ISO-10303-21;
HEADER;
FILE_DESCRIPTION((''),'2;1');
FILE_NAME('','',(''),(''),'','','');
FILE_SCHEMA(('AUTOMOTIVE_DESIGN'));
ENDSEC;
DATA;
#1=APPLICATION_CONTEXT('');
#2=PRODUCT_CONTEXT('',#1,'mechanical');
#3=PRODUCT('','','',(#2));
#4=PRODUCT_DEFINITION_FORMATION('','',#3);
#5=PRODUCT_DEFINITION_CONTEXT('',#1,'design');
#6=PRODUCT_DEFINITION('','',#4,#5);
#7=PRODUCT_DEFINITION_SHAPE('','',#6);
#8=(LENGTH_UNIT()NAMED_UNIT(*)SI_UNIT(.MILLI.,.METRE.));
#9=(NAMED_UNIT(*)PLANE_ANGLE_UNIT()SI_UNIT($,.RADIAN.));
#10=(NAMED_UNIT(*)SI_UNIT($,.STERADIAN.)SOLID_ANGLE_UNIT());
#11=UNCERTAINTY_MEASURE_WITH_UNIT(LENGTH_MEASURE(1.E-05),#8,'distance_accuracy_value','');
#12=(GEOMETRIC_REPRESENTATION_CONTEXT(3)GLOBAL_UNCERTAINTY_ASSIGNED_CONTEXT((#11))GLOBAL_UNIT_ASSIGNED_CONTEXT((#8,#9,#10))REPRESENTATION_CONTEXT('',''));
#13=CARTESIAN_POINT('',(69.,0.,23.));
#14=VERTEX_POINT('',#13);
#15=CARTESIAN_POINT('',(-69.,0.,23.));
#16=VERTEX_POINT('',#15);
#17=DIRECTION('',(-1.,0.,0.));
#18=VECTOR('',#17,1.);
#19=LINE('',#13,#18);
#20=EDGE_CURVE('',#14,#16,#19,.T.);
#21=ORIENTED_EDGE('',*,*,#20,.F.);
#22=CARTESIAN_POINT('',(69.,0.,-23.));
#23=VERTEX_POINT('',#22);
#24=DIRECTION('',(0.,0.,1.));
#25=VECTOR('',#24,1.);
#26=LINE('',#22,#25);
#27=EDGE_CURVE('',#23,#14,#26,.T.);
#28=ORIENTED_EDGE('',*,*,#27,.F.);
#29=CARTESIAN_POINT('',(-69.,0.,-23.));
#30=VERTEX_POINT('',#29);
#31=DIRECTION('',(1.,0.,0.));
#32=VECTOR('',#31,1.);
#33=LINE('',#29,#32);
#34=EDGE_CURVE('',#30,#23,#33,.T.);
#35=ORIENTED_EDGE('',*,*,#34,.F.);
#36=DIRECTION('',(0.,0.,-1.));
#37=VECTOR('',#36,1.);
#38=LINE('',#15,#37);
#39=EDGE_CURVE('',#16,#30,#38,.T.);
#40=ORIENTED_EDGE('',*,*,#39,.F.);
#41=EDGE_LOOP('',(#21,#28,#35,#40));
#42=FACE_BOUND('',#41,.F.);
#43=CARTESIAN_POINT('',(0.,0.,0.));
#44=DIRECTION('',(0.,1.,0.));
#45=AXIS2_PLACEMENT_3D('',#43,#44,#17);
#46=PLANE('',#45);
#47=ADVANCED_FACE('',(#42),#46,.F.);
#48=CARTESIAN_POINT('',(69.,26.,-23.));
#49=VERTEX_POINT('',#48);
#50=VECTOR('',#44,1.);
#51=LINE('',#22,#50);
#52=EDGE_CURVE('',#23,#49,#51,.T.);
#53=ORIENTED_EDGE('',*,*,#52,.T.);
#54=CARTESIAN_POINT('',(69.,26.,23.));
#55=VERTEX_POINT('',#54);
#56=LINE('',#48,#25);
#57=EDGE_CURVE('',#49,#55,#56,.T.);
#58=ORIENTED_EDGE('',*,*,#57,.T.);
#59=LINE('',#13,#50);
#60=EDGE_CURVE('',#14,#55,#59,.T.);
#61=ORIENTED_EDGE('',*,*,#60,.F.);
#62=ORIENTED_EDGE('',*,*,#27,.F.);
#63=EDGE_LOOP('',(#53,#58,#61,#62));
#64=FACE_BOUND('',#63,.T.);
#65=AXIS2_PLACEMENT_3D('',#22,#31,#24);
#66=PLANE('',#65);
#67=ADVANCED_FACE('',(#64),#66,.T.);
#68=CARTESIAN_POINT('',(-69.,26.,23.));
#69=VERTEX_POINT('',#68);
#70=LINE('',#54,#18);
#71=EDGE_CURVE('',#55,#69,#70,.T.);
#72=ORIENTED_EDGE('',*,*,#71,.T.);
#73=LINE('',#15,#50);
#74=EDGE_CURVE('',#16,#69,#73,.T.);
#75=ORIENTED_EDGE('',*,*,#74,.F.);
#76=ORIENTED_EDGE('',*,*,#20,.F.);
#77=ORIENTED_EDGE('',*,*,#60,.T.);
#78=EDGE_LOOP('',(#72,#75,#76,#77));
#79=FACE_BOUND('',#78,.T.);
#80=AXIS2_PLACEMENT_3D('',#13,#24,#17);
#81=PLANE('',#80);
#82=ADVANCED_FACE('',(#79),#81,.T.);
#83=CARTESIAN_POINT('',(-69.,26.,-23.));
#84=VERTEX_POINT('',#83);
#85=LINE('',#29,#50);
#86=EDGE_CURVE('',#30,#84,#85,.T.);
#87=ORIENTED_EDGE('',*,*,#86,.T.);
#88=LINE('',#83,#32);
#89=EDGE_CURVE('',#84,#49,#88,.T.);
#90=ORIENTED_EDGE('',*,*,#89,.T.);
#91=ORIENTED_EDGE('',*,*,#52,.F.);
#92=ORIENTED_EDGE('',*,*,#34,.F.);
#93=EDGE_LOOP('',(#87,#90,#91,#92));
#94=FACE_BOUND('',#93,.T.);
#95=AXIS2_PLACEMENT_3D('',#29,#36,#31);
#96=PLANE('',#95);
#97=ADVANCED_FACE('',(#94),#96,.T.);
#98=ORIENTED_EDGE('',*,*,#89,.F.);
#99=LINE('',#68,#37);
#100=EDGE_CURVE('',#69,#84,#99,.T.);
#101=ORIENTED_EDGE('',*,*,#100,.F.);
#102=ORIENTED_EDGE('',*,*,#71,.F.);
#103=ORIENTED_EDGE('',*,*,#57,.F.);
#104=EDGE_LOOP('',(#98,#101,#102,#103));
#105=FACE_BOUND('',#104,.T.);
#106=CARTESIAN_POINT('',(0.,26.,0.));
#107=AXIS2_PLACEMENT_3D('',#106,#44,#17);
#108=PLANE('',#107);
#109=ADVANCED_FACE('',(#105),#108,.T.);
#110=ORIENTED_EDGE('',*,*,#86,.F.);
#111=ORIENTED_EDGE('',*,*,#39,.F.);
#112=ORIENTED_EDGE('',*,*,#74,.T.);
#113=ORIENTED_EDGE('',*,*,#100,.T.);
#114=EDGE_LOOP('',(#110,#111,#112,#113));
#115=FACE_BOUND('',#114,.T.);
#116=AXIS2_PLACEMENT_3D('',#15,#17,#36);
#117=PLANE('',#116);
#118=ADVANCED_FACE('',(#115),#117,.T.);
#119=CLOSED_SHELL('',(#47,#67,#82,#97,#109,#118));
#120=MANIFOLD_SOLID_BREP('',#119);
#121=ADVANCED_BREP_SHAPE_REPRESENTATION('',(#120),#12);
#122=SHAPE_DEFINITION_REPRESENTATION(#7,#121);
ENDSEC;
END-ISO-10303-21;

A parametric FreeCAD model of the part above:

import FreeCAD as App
import Part
import Sketcher
Q = App.Units.Quantity

doc = App.newDocument("Part")
params = doc.addObject("Spreadsheet::Sheet", "Params")
for row, (alias, value) in enumerate([
    ("sketch1_width", "138 mm"),
    ("sketch1_height", "46 mm"),
    ("pad1_length", "26 mm"),
], start=1):
    params.set(f"A{row}", alias)
    params.set(f"B{row}", "=" + value)
    params.setAlias(f"B{row}", alias)

body = doc.addObject("PartDesign::Body", "Body")

sketch1 = body.newObject("Sketcher::SketchObject", "Sketch")
sketch1.AttachmentSupport = (doc.getObject("XZ_Plane"), [""])
sketch1.MapMode = "FlatFace"
sketch1.addGeometry(Part.LineSegment(App.Vector(-69, 23, 0), App.Vector(69, 23, 0)), False)
sketch1.addGeometry(Part.LineSegment(App.Vector(69, 23, 0), App.Vector(69, -23, 0)), False)
sketch1.addGeometry(Part.LineSegment(App.Vector(69, -23, 0), App.Vector(-69, -23, 0)), False)
sketch1.addGeometry(Part.LineSegment(App.Vector(-69, -23, 0), App.Vector(-69, 23, 0)), False)
sketch1.addConstraint(Sketcher.Constraint("Coincident", 0, 2, 1, 1))
sketch1.addConstraint(Sketcher.Constraint("Coincident", 1, 2, 2, 1))
sketch1.addConstraint(Sketcher.Constraint("Coincident", 2, 2, 3, 1))
sketch1.addConstraint(Sketcher.Constraint("Coincident", 3, 2, 0, 1))
sketch1.addConstraint(Sketcher.Constraint("Horizontal", 0))
sketch1.addConstraint(Sketcher.Constraint("Vertical", 1))
sketch1.addConstraint(Sketcher.Constraint("Horizontal", 2))
sketch1.addConstraint(Sketcher.Constraint("Vertical", 3))
sketch1.addConstraint(Sketcher.Constraint("Symmetric", 0, 2, 2, 2, -1, 1))
sketch1.addConstraint(Sketcher.Constraint("DistanceX", 0, 1, 0, 2, Q("138 mm")))
sketch1.addConstraint(Sketcher.Constraint("DistanceY", 1, 2, 1, 1, Q("46 mm")))
sketch1.setExpression("Constraints[9]", "Params.sketch1_width")
sketch1.setExpression("Constraints[10]", "Params.sketch1_height")
pad1 = body.newObject("PartDesign::Pad", "Pad")
pad1.Profile = sketch1
pad1.setExpression("Length", "Params.pad1_length")
pad1.Reversed = True

doc.recompute()
